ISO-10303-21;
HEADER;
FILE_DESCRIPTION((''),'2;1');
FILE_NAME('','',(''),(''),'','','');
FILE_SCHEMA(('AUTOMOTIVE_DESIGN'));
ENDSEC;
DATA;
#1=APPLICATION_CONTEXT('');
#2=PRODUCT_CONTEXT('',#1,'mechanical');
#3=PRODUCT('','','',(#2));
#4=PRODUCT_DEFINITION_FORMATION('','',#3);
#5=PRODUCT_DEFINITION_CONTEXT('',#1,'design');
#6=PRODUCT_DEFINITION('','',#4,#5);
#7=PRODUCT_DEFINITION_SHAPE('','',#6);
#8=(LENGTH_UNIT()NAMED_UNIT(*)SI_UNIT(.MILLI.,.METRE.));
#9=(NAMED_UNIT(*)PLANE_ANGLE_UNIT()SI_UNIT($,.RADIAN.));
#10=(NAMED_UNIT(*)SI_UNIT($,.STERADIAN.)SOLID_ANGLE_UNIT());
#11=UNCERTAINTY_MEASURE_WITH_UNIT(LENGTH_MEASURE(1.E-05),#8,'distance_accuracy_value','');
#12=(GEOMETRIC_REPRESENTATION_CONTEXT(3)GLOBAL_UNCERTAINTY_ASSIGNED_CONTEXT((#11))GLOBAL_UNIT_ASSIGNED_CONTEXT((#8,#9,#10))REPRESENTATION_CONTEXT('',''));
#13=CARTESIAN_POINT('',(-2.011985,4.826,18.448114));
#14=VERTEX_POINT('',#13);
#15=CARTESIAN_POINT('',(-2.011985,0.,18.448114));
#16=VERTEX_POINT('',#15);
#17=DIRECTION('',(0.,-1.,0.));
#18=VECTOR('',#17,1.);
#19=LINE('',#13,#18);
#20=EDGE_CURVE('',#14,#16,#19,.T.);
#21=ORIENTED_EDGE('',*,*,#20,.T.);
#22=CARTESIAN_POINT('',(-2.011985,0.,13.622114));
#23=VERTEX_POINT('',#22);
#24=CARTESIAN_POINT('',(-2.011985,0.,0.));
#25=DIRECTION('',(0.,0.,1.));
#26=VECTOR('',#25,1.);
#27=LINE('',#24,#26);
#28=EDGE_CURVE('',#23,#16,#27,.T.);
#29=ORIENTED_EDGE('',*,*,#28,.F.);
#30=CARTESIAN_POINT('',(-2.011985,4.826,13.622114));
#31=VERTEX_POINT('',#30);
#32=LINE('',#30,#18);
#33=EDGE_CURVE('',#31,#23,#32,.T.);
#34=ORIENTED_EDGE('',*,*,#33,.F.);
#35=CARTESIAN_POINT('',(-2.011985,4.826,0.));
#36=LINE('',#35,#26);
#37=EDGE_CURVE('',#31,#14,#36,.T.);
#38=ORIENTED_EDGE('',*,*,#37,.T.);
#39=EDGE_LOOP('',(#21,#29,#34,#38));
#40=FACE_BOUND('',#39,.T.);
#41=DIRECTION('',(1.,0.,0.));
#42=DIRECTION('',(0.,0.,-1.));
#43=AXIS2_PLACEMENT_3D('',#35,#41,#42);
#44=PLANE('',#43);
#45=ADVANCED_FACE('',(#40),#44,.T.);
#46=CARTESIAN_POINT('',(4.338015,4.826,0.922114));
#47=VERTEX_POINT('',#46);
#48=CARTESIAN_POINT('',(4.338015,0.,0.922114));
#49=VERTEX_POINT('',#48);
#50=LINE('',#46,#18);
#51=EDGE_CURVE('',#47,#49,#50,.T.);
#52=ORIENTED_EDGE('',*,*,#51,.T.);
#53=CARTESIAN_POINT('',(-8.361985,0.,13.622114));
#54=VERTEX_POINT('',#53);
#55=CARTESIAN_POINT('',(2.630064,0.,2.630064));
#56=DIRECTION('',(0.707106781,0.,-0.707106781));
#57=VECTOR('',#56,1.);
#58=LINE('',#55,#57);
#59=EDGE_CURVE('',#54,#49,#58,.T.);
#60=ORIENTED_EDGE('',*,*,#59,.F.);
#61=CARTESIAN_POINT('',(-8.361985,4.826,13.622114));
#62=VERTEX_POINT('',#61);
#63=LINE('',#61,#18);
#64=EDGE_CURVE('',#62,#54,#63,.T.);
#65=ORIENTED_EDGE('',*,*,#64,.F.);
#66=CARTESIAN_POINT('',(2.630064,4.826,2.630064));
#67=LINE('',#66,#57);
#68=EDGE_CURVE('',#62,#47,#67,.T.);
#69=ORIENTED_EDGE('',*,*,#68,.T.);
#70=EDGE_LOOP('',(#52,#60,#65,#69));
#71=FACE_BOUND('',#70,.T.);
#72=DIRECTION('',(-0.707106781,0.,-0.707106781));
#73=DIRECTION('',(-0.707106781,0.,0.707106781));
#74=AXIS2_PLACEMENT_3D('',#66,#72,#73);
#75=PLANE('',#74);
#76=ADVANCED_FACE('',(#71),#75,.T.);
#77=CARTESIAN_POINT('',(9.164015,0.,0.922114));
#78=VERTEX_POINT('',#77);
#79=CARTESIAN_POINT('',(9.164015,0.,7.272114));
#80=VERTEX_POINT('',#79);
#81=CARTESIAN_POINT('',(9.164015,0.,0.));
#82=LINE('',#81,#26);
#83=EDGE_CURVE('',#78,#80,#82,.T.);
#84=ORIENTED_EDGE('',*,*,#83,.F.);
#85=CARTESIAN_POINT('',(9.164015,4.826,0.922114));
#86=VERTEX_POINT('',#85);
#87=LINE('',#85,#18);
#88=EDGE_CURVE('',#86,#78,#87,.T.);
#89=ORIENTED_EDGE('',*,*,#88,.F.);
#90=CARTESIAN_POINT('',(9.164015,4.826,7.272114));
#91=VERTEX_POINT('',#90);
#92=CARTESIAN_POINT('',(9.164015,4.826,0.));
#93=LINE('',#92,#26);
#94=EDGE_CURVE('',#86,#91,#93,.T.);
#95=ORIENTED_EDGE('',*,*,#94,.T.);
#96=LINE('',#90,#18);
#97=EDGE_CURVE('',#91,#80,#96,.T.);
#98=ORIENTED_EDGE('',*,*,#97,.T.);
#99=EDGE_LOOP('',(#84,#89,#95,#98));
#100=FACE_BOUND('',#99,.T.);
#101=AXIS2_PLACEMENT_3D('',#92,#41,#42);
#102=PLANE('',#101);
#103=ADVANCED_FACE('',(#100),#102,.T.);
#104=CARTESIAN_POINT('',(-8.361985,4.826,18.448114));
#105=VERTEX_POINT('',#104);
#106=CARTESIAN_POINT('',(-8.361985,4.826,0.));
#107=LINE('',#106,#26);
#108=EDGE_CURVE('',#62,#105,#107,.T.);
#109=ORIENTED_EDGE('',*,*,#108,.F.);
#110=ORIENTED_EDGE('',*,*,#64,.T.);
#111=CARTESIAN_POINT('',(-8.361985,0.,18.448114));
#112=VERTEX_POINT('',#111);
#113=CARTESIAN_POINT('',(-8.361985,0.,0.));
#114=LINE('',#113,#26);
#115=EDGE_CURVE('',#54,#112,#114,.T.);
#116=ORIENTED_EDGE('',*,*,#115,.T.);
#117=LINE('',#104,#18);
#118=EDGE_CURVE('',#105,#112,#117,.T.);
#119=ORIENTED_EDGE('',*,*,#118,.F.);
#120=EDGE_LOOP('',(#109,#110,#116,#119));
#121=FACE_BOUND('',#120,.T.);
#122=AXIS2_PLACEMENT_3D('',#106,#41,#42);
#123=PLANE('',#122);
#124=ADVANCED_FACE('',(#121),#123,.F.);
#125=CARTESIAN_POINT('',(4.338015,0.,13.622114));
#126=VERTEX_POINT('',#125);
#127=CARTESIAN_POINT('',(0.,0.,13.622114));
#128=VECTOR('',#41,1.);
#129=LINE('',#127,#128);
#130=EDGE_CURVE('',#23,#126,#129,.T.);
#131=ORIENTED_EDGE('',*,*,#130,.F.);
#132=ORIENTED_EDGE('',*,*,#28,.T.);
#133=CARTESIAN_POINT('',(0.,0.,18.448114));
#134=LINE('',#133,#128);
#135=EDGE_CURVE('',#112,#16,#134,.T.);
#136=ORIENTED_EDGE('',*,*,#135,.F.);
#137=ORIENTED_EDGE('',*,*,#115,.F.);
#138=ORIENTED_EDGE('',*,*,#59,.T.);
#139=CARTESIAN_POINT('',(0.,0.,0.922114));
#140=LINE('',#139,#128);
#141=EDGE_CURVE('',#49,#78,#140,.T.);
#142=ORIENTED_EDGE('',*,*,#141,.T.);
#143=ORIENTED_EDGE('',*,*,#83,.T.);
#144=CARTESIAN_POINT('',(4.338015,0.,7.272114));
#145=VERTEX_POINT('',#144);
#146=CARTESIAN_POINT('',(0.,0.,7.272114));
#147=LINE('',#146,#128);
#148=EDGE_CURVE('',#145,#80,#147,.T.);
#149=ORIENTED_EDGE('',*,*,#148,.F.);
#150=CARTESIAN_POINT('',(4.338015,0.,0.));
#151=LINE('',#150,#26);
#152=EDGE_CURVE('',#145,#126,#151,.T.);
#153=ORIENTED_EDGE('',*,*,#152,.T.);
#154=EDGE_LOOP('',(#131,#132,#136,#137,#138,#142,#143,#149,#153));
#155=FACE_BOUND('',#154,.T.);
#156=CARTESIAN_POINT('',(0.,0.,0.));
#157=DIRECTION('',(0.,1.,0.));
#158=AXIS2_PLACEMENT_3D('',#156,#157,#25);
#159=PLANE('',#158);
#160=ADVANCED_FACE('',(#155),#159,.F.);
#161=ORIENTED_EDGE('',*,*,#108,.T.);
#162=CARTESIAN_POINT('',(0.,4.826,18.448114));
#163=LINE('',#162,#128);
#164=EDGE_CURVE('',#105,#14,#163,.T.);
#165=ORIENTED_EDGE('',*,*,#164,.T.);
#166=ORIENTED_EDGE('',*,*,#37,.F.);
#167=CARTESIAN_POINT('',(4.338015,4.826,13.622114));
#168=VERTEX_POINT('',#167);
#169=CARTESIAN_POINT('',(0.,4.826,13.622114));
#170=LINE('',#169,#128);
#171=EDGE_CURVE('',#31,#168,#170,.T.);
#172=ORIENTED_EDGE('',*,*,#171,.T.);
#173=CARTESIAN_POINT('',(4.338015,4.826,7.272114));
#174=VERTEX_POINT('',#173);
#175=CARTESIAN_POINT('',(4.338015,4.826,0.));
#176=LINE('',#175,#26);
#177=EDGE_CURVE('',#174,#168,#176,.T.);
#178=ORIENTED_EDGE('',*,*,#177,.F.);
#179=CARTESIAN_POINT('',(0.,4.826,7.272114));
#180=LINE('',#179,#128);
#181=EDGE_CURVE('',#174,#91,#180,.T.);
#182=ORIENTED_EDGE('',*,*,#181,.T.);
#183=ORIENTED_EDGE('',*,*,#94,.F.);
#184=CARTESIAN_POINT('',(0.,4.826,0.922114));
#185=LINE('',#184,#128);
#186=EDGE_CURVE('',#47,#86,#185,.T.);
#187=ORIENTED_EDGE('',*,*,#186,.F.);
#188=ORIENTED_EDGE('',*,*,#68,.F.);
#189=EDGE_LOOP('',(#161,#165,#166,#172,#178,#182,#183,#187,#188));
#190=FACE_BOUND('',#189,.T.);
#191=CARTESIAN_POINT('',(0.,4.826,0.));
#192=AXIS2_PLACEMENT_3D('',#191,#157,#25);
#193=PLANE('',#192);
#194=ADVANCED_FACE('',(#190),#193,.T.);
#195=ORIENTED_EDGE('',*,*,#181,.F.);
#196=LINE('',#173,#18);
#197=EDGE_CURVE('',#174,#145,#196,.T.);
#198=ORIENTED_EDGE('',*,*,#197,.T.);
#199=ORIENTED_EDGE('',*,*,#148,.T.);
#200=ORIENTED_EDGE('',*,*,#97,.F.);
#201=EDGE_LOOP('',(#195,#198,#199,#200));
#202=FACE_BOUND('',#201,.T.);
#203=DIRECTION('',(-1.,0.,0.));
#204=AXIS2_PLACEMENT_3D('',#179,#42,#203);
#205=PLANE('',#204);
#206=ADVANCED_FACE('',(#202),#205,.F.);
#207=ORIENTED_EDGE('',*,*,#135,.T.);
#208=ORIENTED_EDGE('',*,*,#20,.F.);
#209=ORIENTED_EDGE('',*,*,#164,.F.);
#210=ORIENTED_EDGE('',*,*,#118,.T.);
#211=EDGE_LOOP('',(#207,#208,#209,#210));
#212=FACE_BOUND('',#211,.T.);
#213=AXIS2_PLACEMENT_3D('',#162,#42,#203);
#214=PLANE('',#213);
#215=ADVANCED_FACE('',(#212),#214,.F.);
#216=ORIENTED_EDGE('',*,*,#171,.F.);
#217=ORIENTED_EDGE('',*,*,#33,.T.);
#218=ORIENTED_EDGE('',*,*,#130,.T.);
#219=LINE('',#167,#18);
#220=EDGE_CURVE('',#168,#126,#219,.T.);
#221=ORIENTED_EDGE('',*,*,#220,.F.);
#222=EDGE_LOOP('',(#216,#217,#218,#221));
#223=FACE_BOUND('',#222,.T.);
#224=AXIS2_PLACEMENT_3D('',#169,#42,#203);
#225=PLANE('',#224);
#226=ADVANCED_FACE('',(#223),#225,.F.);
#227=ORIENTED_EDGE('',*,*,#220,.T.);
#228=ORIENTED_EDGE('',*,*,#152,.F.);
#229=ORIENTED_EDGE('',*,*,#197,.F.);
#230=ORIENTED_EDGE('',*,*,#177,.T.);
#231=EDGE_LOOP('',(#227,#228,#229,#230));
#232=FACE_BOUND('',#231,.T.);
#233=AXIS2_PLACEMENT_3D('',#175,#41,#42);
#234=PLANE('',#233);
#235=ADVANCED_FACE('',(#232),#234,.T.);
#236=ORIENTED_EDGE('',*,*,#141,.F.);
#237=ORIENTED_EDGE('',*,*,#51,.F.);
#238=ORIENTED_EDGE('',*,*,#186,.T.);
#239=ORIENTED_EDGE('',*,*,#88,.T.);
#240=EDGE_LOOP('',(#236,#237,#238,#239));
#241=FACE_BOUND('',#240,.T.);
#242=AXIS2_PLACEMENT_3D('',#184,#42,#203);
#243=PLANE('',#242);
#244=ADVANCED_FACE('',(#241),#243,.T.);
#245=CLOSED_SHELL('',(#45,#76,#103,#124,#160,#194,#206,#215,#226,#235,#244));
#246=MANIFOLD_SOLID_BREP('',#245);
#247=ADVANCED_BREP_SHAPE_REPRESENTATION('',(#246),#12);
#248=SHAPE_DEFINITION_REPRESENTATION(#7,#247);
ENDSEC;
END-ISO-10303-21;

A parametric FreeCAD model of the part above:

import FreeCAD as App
import Part
import Sketcher
Q = App.Units.Quantity


def add_polygon(sketch, points):
    """Adds a closed chain of lines whose ends are joined by coincident constraints."""
    first, n = sketch.GeometryCount, len(points)
    for a, b in zip(points, points[1:] + points[:1]):
        sketch.addGeometry(Part.LineSegment(App.Vector(*a, 0), App.Vector(*b, 0)), False)
    for i in range(n):
        sketch.addConstraint(Sketcher.Constraint("Coincident", first + i, 2, first + (i + 1) % n, 1))

doc = App.newDocument("Part")
body = doc.addObject("PartDesign::Body", "Body")

sketch1 = body.newObject("Sketcher::SketchObject", "Sketch")
sketch1.AttachmentSupport = (doc.getObject("XZ_Plane"), [""])
sketch1.MapMode = "FlatFace"
add_polygon(sketch1, [(-8.4, 13.6), (-8.4, 18.4), (-2, 18.4), (-2, 13.6), (4.3, 13.6), (4.3, 7.3), (9.2, 7.3), (9.2, 0.9), (4.3, 0.9)])
sketch1.addConstraint(Sketcher.Constraint("Vertical", 0))
sketch1.addConstraint(Sketcher.Constraint("Horizontal", 1))
sketch1.addConstraint(Sketcher.Constraint("Vertical", 2))
sketch1.addConstraint(Sketcher.Constraint("Horizontal", 3))
sketch1.addConstraint(Sketcher.Constraint("Vertical", 4))
sketch1.addConstraint(Sketcher.Constraint("Horizontal", 5))
sketch1.addConstraint(Sketcher.Constraint("Vertical", 6))
sketch1.addConstraint(Sketcher.Constraint("Horizontal", 7))
sketch1.addConstraint(Sketcher.Constraint("Horizontal", 3, 2, 8, 2))
sketch1.addConstraint(Sketcher.Constraint("Vertical", 4, 2, 7, 2))
sketch1.addConstraint(Sketcher.Constraint("Equal", 1, 3))
sketch1.addConstraint(Sketcher.Constraint("Equal", 7, 0))
sketch1.addConstraint(Sketcher.Constraint("Equal", 3, 4))
sketch1.addConstraint(Sketcher.Constraint("Equal", 4, 6))
sketch1.addConstraint(Sketcher.Constraint("DistanceX", 1, 1, 1, 2, Q("0.25 in")))
sketch1.addConstraint(Sketcher.Constraint("DistanceX", 5, 1, 5, 2, Q("0.19 in")))
sketch1.addConstraint(Sketcher.Constraint("DistanceX", 0, 2, -1, 1, Q("8.361985 mm")))
sketch1.addConstraint(Sketcher.Constraint("DistanceY", -1, 1, 0, 2, Q("18.448114 mm")))
pad1 = body.newObject("PartDesign::Pad", "Pad")
pad1.Profile = sketch1
pad1.Length = Q("0.19 in")
pad1.Reversed = True

doc.recompute()
